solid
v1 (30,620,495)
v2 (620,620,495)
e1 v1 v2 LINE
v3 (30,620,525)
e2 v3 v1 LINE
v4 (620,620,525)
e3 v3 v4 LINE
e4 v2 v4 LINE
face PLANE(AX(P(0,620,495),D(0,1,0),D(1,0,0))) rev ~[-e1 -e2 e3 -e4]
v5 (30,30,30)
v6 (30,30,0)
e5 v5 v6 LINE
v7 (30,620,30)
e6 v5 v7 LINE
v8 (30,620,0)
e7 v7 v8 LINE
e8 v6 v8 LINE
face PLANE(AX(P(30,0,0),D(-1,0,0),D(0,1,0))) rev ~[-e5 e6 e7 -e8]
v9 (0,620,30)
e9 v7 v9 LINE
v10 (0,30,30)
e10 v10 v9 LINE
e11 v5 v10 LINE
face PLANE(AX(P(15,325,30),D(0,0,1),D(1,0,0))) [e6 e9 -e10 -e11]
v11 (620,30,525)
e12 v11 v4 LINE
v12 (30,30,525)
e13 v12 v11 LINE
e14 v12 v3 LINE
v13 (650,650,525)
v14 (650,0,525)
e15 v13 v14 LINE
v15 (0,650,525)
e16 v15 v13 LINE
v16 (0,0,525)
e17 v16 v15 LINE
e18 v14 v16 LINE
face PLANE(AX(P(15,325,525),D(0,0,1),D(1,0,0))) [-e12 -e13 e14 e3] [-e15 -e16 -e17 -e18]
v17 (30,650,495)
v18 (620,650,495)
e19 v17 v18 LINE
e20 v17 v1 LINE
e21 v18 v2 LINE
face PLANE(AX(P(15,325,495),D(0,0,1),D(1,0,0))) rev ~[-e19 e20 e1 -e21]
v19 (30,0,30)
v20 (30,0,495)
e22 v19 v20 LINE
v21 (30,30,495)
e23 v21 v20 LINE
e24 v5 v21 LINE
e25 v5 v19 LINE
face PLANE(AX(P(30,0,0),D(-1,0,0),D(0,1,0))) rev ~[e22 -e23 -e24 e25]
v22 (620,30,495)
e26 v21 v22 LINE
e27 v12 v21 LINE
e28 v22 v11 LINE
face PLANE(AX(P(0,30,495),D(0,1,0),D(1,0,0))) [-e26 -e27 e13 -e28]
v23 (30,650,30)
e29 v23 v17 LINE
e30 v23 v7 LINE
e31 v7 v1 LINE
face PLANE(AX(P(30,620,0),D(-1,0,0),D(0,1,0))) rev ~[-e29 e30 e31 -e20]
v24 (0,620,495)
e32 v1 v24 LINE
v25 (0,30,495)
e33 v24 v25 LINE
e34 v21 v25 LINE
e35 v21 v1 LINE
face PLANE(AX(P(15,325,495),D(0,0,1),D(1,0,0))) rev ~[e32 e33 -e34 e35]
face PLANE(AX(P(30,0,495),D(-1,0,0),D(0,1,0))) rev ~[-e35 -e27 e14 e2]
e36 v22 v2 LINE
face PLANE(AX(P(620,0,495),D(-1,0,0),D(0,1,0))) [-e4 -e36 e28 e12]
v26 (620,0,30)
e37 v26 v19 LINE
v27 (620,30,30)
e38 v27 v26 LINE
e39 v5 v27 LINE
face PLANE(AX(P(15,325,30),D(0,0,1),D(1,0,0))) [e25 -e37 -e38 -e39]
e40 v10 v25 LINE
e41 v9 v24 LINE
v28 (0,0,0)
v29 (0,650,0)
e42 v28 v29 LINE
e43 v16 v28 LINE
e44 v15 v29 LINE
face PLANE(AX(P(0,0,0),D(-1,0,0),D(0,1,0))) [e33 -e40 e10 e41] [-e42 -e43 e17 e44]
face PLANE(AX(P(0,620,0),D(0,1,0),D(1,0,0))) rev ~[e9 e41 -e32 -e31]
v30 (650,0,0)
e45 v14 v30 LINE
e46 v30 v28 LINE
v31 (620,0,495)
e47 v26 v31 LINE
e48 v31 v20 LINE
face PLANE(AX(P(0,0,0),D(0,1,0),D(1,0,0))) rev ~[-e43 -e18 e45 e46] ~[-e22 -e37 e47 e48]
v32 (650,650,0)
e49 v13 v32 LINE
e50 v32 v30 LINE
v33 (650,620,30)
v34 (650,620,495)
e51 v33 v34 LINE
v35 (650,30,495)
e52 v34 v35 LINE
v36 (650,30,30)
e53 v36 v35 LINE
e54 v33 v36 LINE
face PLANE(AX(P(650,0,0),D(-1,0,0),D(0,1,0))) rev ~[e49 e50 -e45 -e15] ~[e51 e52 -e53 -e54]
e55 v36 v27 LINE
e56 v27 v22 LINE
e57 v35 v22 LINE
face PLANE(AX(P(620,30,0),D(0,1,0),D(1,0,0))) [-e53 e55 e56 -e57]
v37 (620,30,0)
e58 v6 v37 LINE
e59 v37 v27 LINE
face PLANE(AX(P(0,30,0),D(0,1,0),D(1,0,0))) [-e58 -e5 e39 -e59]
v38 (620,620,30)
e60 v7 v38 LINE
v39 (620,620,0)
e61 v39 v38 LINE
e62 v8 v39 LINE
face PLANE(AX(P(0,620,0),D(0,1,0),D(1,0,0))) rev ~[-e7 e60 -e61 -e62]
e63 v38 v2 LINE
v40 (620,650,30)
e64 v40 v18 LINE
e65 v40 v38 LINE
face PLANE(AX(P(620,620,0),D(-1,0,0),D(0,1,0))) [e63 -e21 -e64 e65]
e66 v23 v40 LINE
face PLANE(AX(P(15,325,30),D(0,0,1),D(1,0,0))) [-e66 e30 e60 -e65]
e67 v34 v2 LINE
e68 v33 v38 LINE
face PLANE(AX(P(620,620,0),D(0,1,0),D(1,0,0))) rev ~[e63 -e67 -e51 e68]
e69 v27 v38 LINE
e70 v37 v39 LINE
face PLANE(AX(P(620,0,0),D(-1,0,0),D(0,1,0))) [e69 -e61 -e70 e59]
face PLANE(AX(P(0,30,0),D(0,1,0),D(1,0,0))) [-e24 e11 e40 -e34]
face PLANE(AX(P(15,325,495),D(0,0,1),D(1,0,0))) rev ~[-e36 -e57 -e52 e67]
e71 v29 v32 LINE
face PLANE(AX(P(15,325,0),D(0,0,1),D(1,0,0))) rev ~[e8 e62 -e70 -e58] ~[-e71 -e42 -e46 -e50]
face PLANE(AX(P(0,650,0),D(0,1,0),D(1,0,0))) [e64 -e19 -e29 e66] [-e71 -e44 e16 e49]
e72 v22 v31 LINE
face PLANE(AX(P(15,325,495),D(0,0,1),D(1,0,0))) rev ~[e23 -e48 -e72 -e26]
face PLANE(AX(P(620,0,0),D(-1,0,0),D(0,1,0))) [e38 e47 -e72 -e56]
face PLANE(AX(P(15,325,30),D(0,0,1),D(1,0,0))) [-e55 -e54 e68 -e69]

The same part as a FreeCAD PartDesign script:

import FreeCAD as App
import Part
import Sketcher
Q = App.Units.Quantity


def add_polygon(sketch, points):
    """Adds a closed chain of lines whose ends are joined by coincident constraints."""
    first, n = sketch.GeometryCount, len(points)
    for a, b in zip(points, points[1:] + points[:1]):
        sketch.addGeometry(Part.LineSegment(App.Vector(*a, 0), App.Vector(*b, 0)), False)
    for i in range(n):
        sketch.addConstraint(Sketcher.Constraint("Coincident", first + i, 2, first + (i + 1) % n, 1))

doc = App.newDocument("Part")
body = doc.addObject("PartDesign::Body", "Body")

# Sketch on XY plane
sketch1 = doc.addObject("Sketcher::SketchObject", "Sketch")
body.addObject(sketch1)
sketch1.AttachmentSupport = (doc.XY_Plane, [""])
sketch1.MapMode = "FlatFace"
add_polygon(sketch1, [(0, 30), (0, 0), (650, 0), (650, 30)])  # lines 0-3
sketch1.addConstraint([
    Sketcher.Constraint("Vertical", 0),
    Sketcher.Constraint("Horizontal", 1),
    Sketcher.Constraint("Vertical", 2),
    Sketcher.Constraint("Horizontal", 3),
    Sketcher.Constraint("Coincident", 0, 2, -1, 1),
    Sketcher.Constraint("DistanceX", 1, 1, 1, 2, Q("650 mm")),
    Sketcher.Constraint("DistanceY", 0, 2, 0, 1, Q("30 mm")),
])
pad1 = doc.addObject("PartDesign::Pad", "Pad")
body.addObject(pad1)
pad1.Profile = sketch1
pad1.Length = 30
body2 = doc.addObject("PartDesign::Body", "Body001")

# Sketch on XY plane
sketch2 = doc.addObject("Sketcher::SketchObject", "Sketch001")
body2.addObject(sketch2)
sketch2.AttachmentSupport = (doc.getObject("XY_Plane001"), [""])
sketch2.MapMode = "FlatFace"
add_polygon(sketch2, [(0, 650), (0, 620), (650, 620), (650, 650)])  # lines 0-3
sketch2.addConstraint([
    Sketcher.Constraint("Vertical", 0),
    Sketcher.Constraint("Horizontal", 1),
    Sketcher.Constraint("Vertical", 2),
    Sketcher.Constraint("Horizontal", 3),
    Sketcher.Constraint("PointOnObject", 0, 2, -2),
    Sketcher.Constraint("DistanceX", 1, 1, 1, 2, Q("650 mm")),
    Sketcher.Constraint("DistanceY", 0, 2, 0, 1, Q("30 mm")),
    Sketcher.Constraint("DistanceY", -1, 1, 0, 2, Q("620 mm")),
])
pad2 = doc.addObject("PartDesign::Pad", "Pad001")
body2.addObject(pad2)
pad2.Profile = sketch2
pad2.Length = 30
body3 = doc.addObject("PartDesign::Body", "Body002")

# Sketch on XY plane
sketch3 = doc.addObject("Sketcher::SketchObject", "Sketch002")
body3.addObject(sketch3)
sketch3.AttachmentSupport = (doc.getObject("XY_Plane002"), [""])
sketch3.MapMode = "FlatFace"
add_polygon(sketch3, [(620, 650), (620, 0), (650, 0), (650, 650)])  # lines 0-3
sketch3.addConstraint([
    Sketcher.Constraint("Vertical", 0),
    Sketcher.Constraint("Horizontal", 1),
    Sketcher.Constraint("Vertical", 2),
    Sketcher.Constraint("Horizontal", 3),
    Sketcher.Constraint("PointOnObject", 0, 2, -1),
    Sketcher.Constraint("DistanceX", 1, 1, 1, 2, Q("30 mm")),
    Sketcher.Constraint("DistanceY", 0, 2, 0, 1, Q("650 mm")),
    Sketcher.Constraint("DistanceX", -1, 1, 0, 2, Q("620 mm")),
])
pad3 = doc.addObject("PartDesign::Pad", "Pad002")
body3.addObject(pad3)
pad3.Profile = sketch3
pad3.Length = 30
body4 = doc.addObject("PartDesign::Body", "Body003")

# Sketch on XY plane
sketch4 = doc.addObject("Sketcher::SketchObject", "Sketch003")
body4.addObject(sketch4)
sketch4.AttachmentSupport = (doc.getObject("XY_Plane003"), [""])
sketch4.MapMode = "FlatFace"
add_polygon(sketch4, [(0, 650), (0, 0), (30, 0), (30, 650)])  # lines 0-3
sketch4.addConstraint([
    Sketcher.Constraint("Vertical", 0),
    Sketcher.Constraint("Horizontal", 1),
    Sketcher.Constraint("Vertical", 2),
    Sketcher.Constraint("Horizontal", 3),
    Sketcher.Constraint("Coincident", 0, 2, -1, 1),
    Sketcher.Constraint("DistanceX", 1, 1, 1, 2, Q("30 mm")),
    Sketcher.Constraint("DistanceY", 0, 2, 0, 1, Q("650 mm")),
])
pad4 = doc.addObject("PartDesign::Pad", "Pad003")
body4.addObject(pad4)
pad4.Profile = sketch4
pad4.Length = 30
doc.recompute()

boolean = doc.addObject("PartDesign::Boolean", "Boolean")
body4.addObject(boolean)
boolean.Type = "Fuse"
boolean.addObjects([body])
doc.recompute()

boolean2 = doc.addObject("PartDesign::Boolean", "Boolean001")
body4.addObject(boolean2)
boolean2.Type = "Fuse"
boolean2.addObjects([body2])
doc.recompute()

boolean3 = doc.addObject("PartDesign::Boolean", "Boolean002")
body4.addObject(boolean3)
boolean3.Type = "Fuse"
boolean3.addObjects([body3])
body5 = doc.addObject("PartDesign::Body", "Body004")

# Sketch on XY plane
sketch5 = doc.addObject("Sketcher::SketchObject", "Sketch004")
body5.addObject(sketch5)
sketch5.AttachmentSupport = (doc.getObject("XY_Plane004"), [""])
sketch5.MapMode = "FlatFace"
add_polygon(sketch5, [(0, 650), (0, 620), (30, 620), (30, 650)])  # lines 0-3
sketch5.addConstraint([
    Sketcher.Constraint("Vertical", 0),
    Sketcher.Constraint("Horizontal", 1),
    Sketcher.Constraint("Vertical", 2),
    Sketcher.Constraint("Horizontal", 3),
    Sketcher.Constraint("PointOnObject", 0, 2, -2),
    Sketcher.Constraint("Equal", 3, 0),
    Sketcher.Constraint("DistanceX", 1, 1, 1, 2, Q("30 mm")),
    Sketcher.Constraint("DistanceY", -1, 1, 0, 2, Q("620 mm")),
])
pad5 = doc.addObject("PartDesign::Pad", "Pad004")
body5.addObject(pad5)
pad5.Profile = sketch5
pad5.Length = 525
body6 = doc.addObject("PartDesign::Body", "Body005")

# Sketch on XY plane
sketch6 = doc.addObject("Sketcher::SketchObject", "Sketch005")
body6.addObject(sketch6)
sketch6.AttachmentSupport = (doc.getObject("XY_Plane005"), [""])
sketch6.MapMode = "FlatFace"
add_polygon(sketch6, [(620, 650), (620, 620), (650, 620), (650, 650)])  # lines 0-3
sketch6.addConstraint([
    Sketcher.Constraint("Vertical", 0),
    Sketcher.Constraint("Horizontal", 1),
    Sketcher.Constraint("Vertical", 2),
    Sketcher.Constraint("Horizontal", 3),
    Sketcher.Constraint("Equal", 3, 0),
    Sketcher.Constraint("DistanceX", 1, 1, 1, 2, Q("30 mm")),
    Sketcher.Constraint("DistanceX", -1, 1, 0, 2, Q("620 mm")),
    Sketcher.Constraint("DistanceY", -1, 1, 0, 2, Q("620 mm")),
])
pad6 = doc.addObject("PartDesign::Pad", "Pad005")
body6.addObject(pad6)
pad6.Profile = sketch6
pad6.Length = 525
body7 = doc.addObject("PartDesign::Body", "Body006")

# Sketch on XY plane
sketch7 = doc.addObject("Sketcher::SketchObject", "Sketch006")
body7.addObject(sketch7)
sketch7.AttachmentSupport = (doc.getObject("XY_Plane006"), [""])
sketch7.MapMode = "FlatFace"
add_polygon(sketch7, [(620, 30), (620, 0), (650, 0), (650, 30)])  # lines 0-3
sketch7.addConstraint([
    Sketcher.Constraint("Vertical", 0),
    Sketcher.Constraint("Horizontal", 1),
    Sketcher.Constraint("Vertical", 2),
    Sketcher.Constraint("Horizontal", 3),
    Sketcher.Constraint("PointOnObject", 0, 2, -1),
    Sketcher.Constraint("Equal", 3, 0),
    Sketcher.Constraint("DistanceX", 1, 1, 1, 2, Q("30 mm")),
    Sketcher.Constraint("DistanceX", -1, 1, 0, 2, Q("620 mm")),
])
pad7 = doc.addObject("PartDesign::Pad", "Pad006")
body7.addObject(pad7)
pad7.Profile = sketch7
pad7.Length = 525
body8 = doc.addObject("PartDesign::Body", "Body007")

# Sketch on XY plane
sketch8 = doc.addObject("Sketcher::SketchObject", "Sketch007")
body8.addObject(sketch8)
sketch8.AttachmentSupport = (doc.getObject("XY_Plane007"), [""])
sketch8.MapMode = "FlatFace"
add_polygon(sketch8, [(0, 30), (0, 0), (30, 0), (30, 30)])  # lines 0-3
sketch8.addConstraint([
    Sketcher.Constraint("Vertical", 0),
    Sketcher.Constraint("Horizontal", 1),
    Sketcher.Constraint("Vertical", 2),
    Sketcher.Constraint("Horizontal", 3),
    Sketcher.Constraint("Coincident", 0, 2, -1, 1),
    Sketcher.Constraint("Equal", 3, 0),
    Sketcher.Constraint("DistanceX", 1, 1, 1, 2, Q("30 mm")),
])
pad8 = doc.addObject("PartDesign::Pad", "Pad007")
body8.addObject(pad8)
pad8.Profile = sketch8
pad8.Length = 525
body9 = doc.addObject("PartDesign::Body", "Body008")

# Sketch on XY plane
sketch9 = doc.addObject("Sketcher::SketchObject", "Sketch008")
body9.addObject(sketch9)
sketch9.AttachmentSupport = (doc.getObject("XY_Plane008"), [""])
sketch9.MapMode = "FlatFace"
add_polygon(sketch9, [(0, 30), (0, 0), (650, 0), (650, 30)])  # lines 0-3
sketch9.addConstraint([
    Sketcher.Constraint("Vertical", 0),
    Sketcher.Constraint("Horizontal", 1),
    Sketcher.Constraint("Vertical", 2),
    Sketcher.Constraint("Horizontal", 3),
    Sketcher.Constraint("Coincident", 0, 2, -1, 1),
    Sketcher.Constraint("DistanceX", 1, 1, 1, 2, Q("650 mm")),
    Sketcher.Constraint("DistanceY", 0, 2, 0, 1, Q("30 mm")),
])
pad9 = doc.addObject("PartDesign::Pad", "Pad008")
body9.addObject(pad9)
pad9.Profile = sketch9
pad9.Length = 30
body10 = doc.addObject("PartDesign::Body", "Body009")

# Sketch on XY plane
sketch10 = doc.addObject("Sketcher::SketchObject", "Sketch009")
body10.addObject(sketch10)
sketch10.AttachmentSupport = (doc.getObject("XY_Plane009"), [""])
sketch10.MapMode = "FlatFace"
add_polygon(sketch10, [(0, 650), (0, 620), (650, 620), (650, 650)])  # lines 0-3
sketch10.addConstraint([
    Sketcher.Constraint("Vertical", 0),
    Sketcher.Constraint("Horizontal", 1),
    Sketcher.Constraint("Vertical", 2),
    Sketcher.Constraint("Horizontal", 3),
    Sketcher.Constraint("PointOnObject", 0, 2, -2),
    Sketcher.Constraint("DistanceX", 1, 1, 1, 2, Q("650 mm")),
    Sketcher.Constraint("DistanceY", 0, 2, 0, 1, Q("30 mm")),
    Sketcher.Constraint("DistanceY", -1, 1, 0, 2, Q("620 mm")),
])
pad10 = doc.addObject("PartDesign::Pad", "Pad009")
body10.addObject(pad10)
pad10.Profile = sketch10
pad10.Length = 30
body11 = doc.addObject("PartDesign::Body", "Body010")

# Sketch on XY plane
sketch11 = doc.addObject("Sketcher::SketchObject", "Sketch010")
body11.addObject(sketch11)
sketch11.AttachmentSupport = (doc.getObject("XY_Plane010"), [""])
sketch11.MapMode = "FlatFace"
add_polygon(sketch11, [(620, 650), (620, 0), (650, 0), (650, 650)])  # lines 0-3
sketch11.addConstraint([
    Sketcher.Constraint("Vertical", 0),
    Sketcher.Constraint("Horizontal", 1),
    Sketcher.Constraint("Vertical", 2),
    Sketcher.Constraint("Horizontal", 3),
    Sketcher.Constraint("PointOnObject", 0, 2, -1),
    Sketcher.Constraint("DistanceX", 1, 1, 1, 2, Q("30 mm")),
    Sketcher.Constraint("DistanceY", 0, 2, 0, 1, Q("650 mm")),
    Sketcher.Constraint("DistanceX", -1, 1, 0, 2, Q("620 mm")),
])
pad11 = doc.addObject("PartDesign::Pad", "Pad010")
body11.addObject(pad11)
pad11.Profile = sketch11
pad11.Length = 30
body12 = doc.addObject("PartDesign::Body", "Body011")

# Sketch on XY plane
sketch12 = doc.addObject("Sketcher::SketchObject", "Sketch011")
body12.addObject(sketch12)
sketch12.AttachmentSupport = (doc.getObject("XY_Plane011"), [""])
sketch12.MapMode = "FlatFace"
add_polygon(sketch12, [(0, 650), (0, 0), (30, 0), (30, 650)])  # lines 0-3
sketch12.addConstraint([
    Sketcher.Constraint("Vertical", 0),
    Sketcher.Constraint("Horizontal", 1),
    Sketcher.Constraint("Vertical", 2),
    Sketcher.Constraint("Horizontal", 3),
    Sketcher.Constraint("Coincident", 0, 2, -1, 1),
    Sketcher.Constraint("DistanceX", 1, 1, 1, 2, Q("30 mm")),
    Sketcher.Constraint("DistanceY", 0, 2, 0, 1, Q("650 mm")),
])
pad12 = doc.addObject("PartDesign::Pad", "Pad011")
body12.addObject(pad12)
pad12.Profile = sketch12
pad12.Length = 30
doc.recompute()

boolean4 = doc.addObject("PartDesign::Boolean", "Boolean003")
body12.addObject(boolean4)
boolean4.Type = "Fuse"
boolean4.addObjects([body9])
doc.recompute()

boolean5 = doc.addObject("PartDesign::Boolean", "Boolean004")
body12.addObject(boolean5)
boolean5.Type = "Fuse"
boolean5.addObjects([body10])
doc.recompute()

boolean6 = doc.addObject("PartDesign::Boolean", "Boolean005")
body12.addObject(boolean6)
boolean6.Type = "Fuse"
boolean6.addObjects([body11])
body13 = doc.addObject("PartDesign::Body", "Body012")
body13.AllowCompound = True
doc.recompute()

body12.Placement = App.Placement(App.Vector(0, 0, 495), App.Rotation(App.Vector(0, 0, 1), 0))
boolean7 = doc.addObject("PartDesign::Boolean", "Boolean006")
body13.addObject(boolean7)
boolean7.Type = "Fuse"
boolean7.addObjects([body12])
doc.recompute()

boolean8 = doc.addObject("PartDesign::Boolean", "Boolean007")
body13.addObject(boolean8)
boolean8.Type = "Fuse"
boolean8.addObjects([body4])
doc.recompute()

boolean9 = doc.addObject("PartDesign::Boolean", "Boolean008")
body13.addObject(boolean9)
boolean9.Type = "Fuse"
boolean9.addObjects([body5])
doc.recompute()

boolean10 = doc.addObject("PartDesign::Boolean", "Boolean009")
body13.addObject(boolean10)
boolean10.Type = "Fuse"
boolean10.addObjects([body6])
doc.recompute()

boolean11 = doc.addObject("PartDesign::Boolean", "Boolean010")
body13.addObject(boolean11)
boolean11.Type = "Fuse"
boolean11.addObjects([body7])
doc.recompute()

boolean12 = doc.addObject("PartDesign::Boolean", "Boolean011")
body13.addObject(boolean12)
boolean12.Type = "Fuse"
boolean12.addObjects([body8])

doc.recompute()
